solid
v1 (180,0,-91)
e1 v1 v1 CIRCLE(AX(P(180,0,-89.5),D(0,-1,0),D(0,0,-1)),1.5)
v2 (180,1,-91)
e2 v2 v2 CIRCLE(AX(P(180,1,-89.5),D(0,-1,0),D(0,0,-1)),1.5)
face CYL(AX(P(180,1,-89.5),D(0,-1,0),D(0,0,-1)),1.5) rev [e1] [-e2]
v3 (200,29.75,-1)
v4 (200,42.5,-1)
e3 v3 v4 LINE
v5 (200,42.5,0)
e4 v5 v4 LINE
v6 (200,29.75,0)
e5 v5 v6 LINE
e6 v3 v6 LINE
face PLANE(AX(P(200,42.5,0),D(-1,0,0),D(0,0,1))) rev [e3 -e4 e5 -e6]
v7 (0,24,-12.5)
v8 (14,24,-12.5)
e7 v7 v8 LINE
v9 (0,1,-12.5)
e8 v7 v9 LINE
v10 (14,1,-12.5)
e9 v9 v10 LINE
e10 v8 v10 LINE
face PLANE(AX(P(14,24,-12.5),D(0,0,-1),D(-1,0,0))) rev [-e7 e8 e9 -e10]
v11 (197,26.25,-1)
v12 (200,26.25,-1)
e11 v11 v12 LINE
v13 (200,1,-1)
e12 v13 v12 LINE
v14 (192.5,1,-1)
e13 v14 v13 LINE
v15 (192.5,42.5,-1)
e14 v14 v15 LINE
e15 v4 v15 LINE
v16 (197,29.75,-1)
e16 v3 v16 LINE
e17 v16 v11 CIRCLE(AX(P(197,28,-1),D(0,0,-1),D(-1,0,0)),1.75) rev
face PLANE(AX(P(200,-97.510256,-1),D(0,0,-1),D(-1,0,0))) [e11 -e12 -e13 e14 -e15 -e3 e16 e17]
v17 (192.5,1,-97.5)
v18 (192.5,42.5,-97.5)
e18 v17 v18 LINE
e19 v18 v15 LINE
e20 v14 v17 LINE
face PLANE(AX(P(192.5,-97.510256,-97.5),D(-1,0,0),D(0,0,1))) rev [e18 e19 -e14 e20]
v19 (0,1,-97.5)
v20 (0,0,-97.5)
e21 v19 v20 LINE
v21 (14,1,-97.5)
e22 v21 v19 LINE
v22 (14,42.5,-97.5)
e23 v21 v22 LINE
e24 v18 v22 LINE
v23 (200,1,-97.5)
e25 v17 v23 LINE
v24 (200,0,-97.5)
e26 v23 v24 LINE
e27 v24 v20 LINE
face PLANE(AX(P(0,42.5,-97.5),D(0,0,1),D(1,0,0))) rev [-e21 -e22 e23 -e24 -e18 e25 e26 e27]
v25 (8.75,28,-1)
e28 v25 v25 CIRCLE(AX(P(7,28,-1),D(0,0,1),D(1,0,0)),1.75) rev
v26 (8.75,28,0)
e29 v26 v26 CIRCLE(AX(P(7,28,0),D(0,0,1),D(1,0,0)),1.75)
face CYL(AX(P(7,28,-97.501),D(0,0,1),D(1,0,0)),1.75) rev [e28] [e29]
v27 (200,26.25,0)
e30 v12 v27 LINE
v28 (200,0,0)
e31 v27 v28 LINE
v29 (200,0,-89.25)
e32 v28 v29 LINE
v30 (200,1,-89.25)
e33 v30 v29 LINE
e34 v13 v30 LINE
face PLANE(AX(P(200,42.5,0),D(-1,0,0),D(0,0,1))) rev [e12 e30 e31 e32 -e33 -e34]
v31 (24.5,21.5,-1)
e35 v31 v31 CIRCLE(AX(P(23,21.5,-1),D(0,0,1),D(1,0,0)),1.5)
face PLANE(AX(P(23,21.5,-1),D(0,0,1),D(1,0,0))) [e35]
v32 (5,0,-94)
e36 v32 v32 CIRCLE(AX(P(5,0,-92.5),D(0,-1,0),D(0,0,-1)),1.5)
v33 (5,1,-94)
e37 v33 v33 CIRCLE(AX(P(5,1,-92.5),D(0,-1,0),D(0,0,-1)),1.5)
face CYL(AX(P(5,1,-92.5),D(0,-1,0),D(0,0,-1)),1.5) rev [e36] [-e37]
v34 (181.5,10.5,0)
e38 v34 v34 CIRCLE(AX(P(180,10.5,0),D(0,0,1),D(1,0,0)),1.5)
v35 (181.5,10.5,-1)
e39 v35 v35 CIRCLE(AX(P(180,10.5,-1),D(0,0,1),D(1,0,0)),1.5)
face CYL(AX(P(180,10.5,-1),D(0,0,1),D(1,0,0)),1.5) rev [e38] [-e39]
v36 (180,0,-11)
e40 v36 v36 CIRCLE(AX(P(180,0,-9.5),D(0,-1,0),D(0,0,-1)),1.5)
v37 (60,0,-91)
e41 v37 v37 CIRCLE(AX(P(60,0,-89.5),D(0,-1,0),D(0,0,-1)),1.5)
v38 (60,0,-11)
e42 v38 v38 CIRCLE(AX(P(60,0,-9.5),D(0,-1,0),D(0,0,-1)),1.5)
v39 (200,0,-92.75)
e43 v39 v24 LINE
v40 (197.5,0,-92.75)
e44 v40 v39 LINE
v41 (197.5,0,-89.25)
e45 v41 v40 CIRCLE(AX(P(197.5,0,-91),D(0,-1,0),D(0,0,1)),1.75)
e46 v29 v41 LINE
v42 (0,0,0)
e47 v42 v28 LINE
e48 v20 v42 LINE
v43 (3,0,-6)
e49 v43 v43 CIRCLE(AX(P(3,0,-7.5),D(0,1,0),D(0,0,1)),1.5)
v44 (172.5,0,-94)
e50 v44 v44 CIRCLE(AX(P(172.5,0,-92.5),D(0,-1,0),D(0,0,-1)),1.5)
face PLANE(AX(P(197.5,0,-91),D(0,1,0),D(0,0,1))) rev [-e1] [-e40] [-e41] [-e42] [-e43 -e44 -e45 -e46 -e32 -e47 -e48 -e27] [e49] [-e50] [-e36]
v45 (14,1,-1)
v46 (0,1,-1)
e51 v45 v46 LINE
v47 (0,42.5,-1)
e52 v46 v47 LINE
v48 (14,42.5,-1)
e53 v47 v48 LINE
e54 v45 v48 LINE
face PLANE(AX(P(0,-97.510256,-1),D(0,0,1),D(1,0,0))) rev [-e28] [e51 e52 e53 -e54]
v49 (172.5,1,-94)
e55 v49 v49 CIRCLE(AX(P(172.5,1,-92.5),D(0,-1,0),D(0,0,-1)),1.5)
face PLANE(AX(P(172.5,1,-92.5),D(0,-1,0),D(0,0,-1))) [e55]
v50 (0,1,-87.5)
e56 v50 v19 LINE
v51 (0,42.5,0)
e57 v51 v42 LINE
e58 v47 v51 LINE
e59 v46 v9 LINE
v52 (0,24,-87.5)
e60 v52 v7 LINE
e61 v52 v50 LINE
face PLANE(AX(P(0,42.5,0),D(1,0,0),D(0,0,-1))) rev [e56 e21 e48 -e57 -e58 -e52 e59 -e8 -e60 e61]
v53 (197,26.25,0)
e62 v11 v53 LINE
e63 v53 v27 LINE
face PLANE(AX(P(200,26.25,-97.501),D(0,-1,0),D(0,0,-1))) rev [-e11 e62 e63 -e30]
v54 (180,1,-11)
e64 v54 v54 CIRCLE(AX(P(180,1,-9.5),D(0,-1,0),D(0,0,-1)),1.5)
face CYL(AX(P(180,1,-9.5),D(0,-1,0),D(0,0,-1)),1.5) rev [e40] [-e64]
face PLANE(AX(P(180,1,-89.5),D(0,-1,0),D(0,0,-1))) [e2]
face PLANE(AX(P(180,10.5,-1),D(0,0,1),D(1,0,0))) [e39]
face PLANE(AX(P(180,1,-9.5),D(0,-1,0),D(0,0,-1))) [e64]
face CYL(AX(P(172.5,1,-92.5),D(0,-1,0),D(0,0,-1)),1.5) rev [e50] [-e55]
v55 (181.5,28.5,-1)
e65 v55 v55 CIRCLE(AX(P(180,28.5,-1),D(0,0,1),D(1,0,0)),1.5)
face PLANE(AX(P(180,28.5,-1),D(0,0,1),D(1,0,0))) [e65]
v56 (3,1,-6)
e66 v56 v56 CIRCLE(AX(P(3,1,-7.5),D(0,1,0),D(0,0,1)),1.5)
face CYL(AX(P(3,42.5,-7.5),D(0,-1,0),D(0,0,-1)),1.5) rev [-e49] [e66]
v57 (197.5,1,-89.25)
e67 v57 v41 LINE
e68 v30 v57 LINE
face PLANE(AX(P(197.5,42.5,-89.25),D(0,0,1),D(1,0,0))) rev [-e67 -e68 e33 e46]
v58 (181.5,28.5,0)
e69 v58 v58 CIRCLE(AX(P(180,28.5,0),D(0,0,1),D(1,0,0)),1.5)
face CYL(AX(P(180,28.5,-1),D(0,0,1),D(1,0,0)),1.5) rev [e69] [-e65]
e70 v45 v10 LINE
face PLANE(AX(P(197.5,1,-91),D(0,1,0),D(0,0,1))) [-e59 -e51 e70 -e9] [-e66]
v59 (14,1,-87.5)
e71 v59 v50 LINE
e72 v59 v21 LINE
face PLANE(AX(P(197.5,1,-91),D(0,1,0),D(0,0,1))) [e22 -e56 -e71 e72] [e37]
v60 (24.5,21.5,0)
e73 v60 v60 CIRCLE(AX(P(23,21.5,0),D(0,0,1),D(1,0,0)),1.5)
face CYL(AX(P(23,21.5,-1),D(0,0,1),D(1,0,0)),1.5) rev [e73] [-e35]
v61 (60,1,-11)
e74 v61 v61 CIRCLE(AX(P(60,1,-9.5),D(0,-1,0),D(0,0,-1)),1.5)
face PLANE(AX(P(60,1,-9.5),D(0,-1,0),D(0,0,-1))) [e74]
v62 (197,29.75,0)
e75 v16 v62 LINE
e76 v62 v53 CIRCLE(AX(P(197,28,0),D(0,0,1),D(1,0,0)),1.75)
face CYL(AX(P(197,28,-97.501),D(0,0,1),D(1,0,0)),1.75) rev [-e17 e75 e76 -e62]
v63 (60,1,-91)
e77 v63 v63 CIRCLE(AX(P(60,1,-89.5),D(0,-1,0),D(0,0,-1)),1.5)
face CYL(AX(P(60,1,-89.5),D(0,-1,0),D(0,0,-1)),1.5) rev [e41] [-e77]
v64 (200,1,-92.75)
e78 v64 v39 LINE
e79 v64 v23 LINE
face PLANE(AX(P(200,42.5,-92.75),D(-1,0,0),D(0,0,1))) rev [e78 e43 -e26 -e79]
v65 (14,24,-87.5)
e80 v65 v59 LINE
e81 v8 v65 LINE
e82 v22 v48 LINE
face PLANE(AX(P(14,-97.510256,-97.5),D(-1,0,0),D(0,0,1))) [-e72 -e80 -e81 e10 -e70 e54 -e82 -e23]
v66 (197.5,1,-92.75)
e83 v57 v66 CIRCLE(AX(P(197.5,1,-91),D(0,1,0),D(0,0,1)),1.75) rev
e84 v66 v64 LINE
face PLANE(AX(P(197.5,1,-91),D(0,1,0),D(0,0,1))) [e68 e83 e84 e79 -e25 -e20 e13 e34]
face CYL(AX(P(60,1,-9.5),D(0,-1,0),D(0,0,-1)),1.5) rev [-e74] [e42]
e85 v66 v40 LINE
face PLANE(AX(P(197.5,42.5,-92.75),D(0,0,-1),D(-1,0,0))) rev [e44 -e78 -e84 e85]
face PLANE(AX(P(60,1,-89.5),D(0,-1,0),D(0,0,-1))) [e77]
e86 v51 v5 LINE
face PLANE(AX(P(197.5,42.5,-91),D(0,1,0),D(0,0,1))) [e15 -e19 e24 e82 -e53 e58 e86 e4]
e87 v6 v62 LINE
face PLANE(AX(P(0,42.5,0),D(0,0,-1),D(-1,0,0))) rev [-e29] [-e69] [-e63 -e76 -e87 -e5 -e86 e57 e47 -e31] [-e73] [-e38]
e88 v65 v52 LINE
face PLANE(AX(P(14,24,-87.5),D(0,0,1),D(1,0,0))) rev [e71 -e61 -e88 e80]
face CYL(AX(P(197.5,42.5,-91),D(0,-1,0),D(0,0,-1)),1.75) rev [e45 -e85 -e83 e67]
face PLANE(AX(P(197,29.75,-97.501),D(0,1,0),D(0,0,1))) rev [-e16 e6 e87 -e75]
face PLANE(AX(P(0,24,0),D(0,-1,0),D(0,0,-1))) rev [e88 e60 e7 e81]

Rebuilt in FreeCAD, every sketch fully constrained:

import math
import FreeCAD as App
import Part
import Sketcher
from FreeCAD import Vector

doc = App.newDocument("Part")
params = doc.addObject("Spreadsheet::Sheet", "Params")
for row, (alias, value) in enumerate([
    ("sketch1_diameter", "3 mm"),
    ("sketch1_width", "200 mm"),
    ("sketch1_radius", "1.75 mm"),
    ("sketch1_width2", "2.5 mm"),
    ("sketch1_height", "97.5 mm"),
    ("pad1_length", "42.5 mm"),
    ("sketch2_width", "14 mm"),
    ("sketch2_width2", "7.5 mm"),
    ("sketch2_height", "96.5 mm"),
    ("pocket1_length", "41.5 mm"),
    ("sketch3_diameter", "3.5 mm"),
    ("sketch4_width", "3 mm"),
    ("sketch4_radius", "1.75 mm"),
    ("sketch5_width", "14 mm"),
    ("sketch5_height", "75 mm"),
    ("pad2_length", "23 mm"),
    ("sketch6_diameter", "3 mm"),
    ("pocket4_length", "1 mm"),
    ("sketch7_diameter", "3 mm"),
    ("pocket5_length", "1 mm"),
], start=1):
    params.set(f"A{row}", alias)
    params.set(f"B{row}", "=" + value)
    params.setAlias(f"B{row}", alias)

body = doc.addObject("PartDesign::Body", "Body")

# Sketch on XZ plane
sketch1 = doc.addObject("Sketcher::SketchObject", "Sketch")
body.addObject(sketch1)
sketch1.AttachmentSupport = (doc.XZ_Plane, [""])
sketch1.MapMode = "FlatFace"
sketch1.addGeometry(Part.LineSegment(Vector(197.5, -92.8, 0), Vector(200, -92.8, 0)), False)
sketch1.addGeometry(Part.LineSegment(Vector(200, -92.8, 0), Vector(200, -97.5, 0)), False)
sketch1.addGeometry(Part.LineSegment(Vector(200, -97.5, 0), Vector(0, -97.5, 0)), False)
sketch1.addGeometry(Part.LineSegment(Vector(0, -97.5, 0), Vector(0, 0, 0)), False)
sketch1.addGeometry(Part.LineSegment(Vector(0, 0, 0), Vector(200, 0, 0)), False)
sketch1.addGeometry(Part.LineSegment(Vector(200, 0, 0), Vector(200, -89.2, 0)), False)
sketch1.addGeometry(Part.LineSegment(Vector(200, -89.2, 0), Vector(197.5, -89.2, 0)), False)
sketch1.addGeometry(Part.ArcOfCircle(Part.Circle(Vector(197.5, -91, 0), Vector(0, 0, 1), 1.8), math.radians(90), math.radians(270)), False)
sketch1.addGeometry(Part.Circle(Vector(3, -7.5, 0), Vector(0, 0, 1), 1.5), False)
sketch1.addConstraint(Sketcher.Constraint("Coincident", 0, 2, 1, 1))
sketch1.addConstraint(Sketcher.Constraint("Coincident", 1, 2, 2, 1))
sketch1.addConstraint(Sketcher.Constraint("Coincident", 2, 2, 3, 1))
sketch1.addConstraint(Sketcher.Constraint("Coincident", 3, 2, 4, 1))
sketch1.addConstraint(Sketcher.Constraint("Coincident", 4, 2, 5, 1))
sketch1.addConstraint(Sketcher.Constraint("Coincident", 5, 2, 6, 1))
sketch1.addConstraint(Sketcher.Constraint("Tangent", 6, 2, 7, 1))
sketch1.addConstraint(Sketcher.Constraint("Tangent", 7, 2, 0, 1))
sketch1.addConstraint(Sketcher.Constraint("Horizontal", 0))
sketch1.addConstraint(Sketcher.Constraint("Vertical", 1))
sketch1.addConstraint(Sketcher.Constraint("Horizontal", 2))
sketch1.addConstraint(Sketcher.Constraint("Vertical", 3))
sketch1.addConstraint(Sketcher.Constraint("Horizontal", 4))
sketch1.addConstraint(Sketcher.Constraint("Vertical", 5))
sketch1.addConstraint(Sketcher.Constraint("Horizontal", 6))
sketch1.addConstraint(Sketcher.Constraint("Coincident", 3, 2, -1, 1))
sketch1.addConstraint(Sketcher.Constraint("Vertical", 1, 2, 4, 2))
sketch1.addConstraint(Sketcher.Constraint("Diameter", 8, 3.0))
sketch1.addConstraint(Sketcher.Constraint("DistanceX", 2, 2, 2, 1, 200.0))
sketch1.addConstraint(Sketcher.Constraint("Radius", 7, 1.75))
sketch1.addConstraint(Sketcher.Constraint("DistanceX", 0, 1, 0, 2, 2.5))
sketch1.addConstraint(Sketcher.Constraint("DistanceY", 3, 1, 3, 2, 97.5))
sketch1.addConstraint(Sketcher.Constraint("DistanceY", 7, 3, -1, 1, 91.0))
sketch1.addConstraint(Sketcher.Constraint("DistanceX", -1, 1, 8, 3, 3.0))
sketch1.addConstraint(Sketcher.Constraint("DistanceY", 1, 2, 8, 3, 90.0))
sketch1.setExpression("Constraints[17]", "Params.sketch1_diameter")
sketch1.setExpression("Constraints[18]", "Params.sketch1_width")
sketch1.setExpression("Constraints[19]", "Params.sketch1_radius")
sketch1.setExpression("Constraints[20]", "Params.sketch1_width2")
sketch1.setExpression("Constraints[21]", "Params.sketch1_height")
pad1 = doc.addObject("PartDesign::Pad", "Pad")
body.addObject(pad1)
pad1.Profile = sketch1
pad1.setExpression("Length", "Params.pad1_length")
pad1.Reversed = True

# Sketch on XZ plane
sketch2 = doc.addObject("Sketcher::SketchObject", "Sketch001")
body.addObject(sketch2)
sketch2.AttachmentSupport = (doc.XZ_Plane, [""])
sketch2.MapMode = "FlatFace"
sketch2.AttachmentOffset = App.Placement(Vector(0, 0, -42.5), App.Rotation())
sketch2.addGeometry(Part.LineSegment(Vector(192, -98, 0), Vector(192, -1, 0)), False)
sketch2.addGeometry(Part.LineSegment(Vector(192, -1, 0), Vector(200, -1, 0)), False)
sketch2.addGeometry(Part.LineSegment(Vector(200, -1, 0), Vector(200, -98, 0)), False)
sketch2.addGeometry(Part.LineSegment(Vector(200, -98, 0), Vector(192, -98, 0)), False)
sketch2.addGeometry(Part.LineSegment(Vector(0, -98, 0), Vector(0, -1, 0)), False)
sketch2.addGeometry(Part.LineSegment(Vector(0, -1, 0), Vector(14, -1, 0)), False)
sketch2.addGeometry(Part.LineSegment(Vector(14, -1, 0), Vector(14, -98, 0)), False)
sketch2.addGeometry(Part.LineSegment(Vector(14, -98, 0), Vector(0, -98, 0)), False)
sketch2.addConstraint(Sketcher.Constraint("Coincident", 0, 2, 1, 1))
sketch2.addConstraint(Sketcher.Constraint("Coincident", 1, 2, 2, 1))
sketch2.addConstraint(Sketcher.Constraint("Coincident", 2, 2, 3, 1))
sketch2.addConstraint(Sketcher.Constraint("Coincident", 3, 2, 0, 1))
sketch2.addConstraint(Sketcher.Constraint("Coincident", 4, 2, 5, 1))
sketch2.addConstraint(Sketcher.Constraint("Coincident", 5, 2, 6, 1))
sketch2.addConstraint(Sketcher.Constraint("Coincident", 6, 2, 7, 1))
sketch2.addConstraint(Sketcher.Constraint("Coincident", 7, 2, 4, 1))
sketch2.addConstraint(Sketcher.Constraint("Vertical", 0))
sketch2.addConstraint(Sketcher.Constraint("Horizontal", 1))
sketch2.addConstraint(Sketcher.Constraint("Vertical", 2))
sketch2.addConstraint(Sketcher.Constraint("Horizontal", 3))
sketch2.addConstraint(Sketcher.Constraint("Vertical", 4))
sketch2.addConstraint(Sketcher.Constraint("Horizontal", 5))
sketch2.addConstraint(Sketcher.Constraint("Vertical", 6))
sketch2.addConstraint(Sketcher.Constraint("Horizontal", 7))
sketch2.addConstraint(Sketcher.Constraint("PointOnObject", 4, 2, -2))
sketch2.addConstraint(Sketcher.Constraint("Horizontal", 1, 2, 4, 2))
sketch2.addConstraint(Sketcher.Constraint("Horizontal", 3, 2, 6, 2))
sketch2.addConstraint(Sketcher.Constraint("DistanceX", 5, 1, 5, 2, 14.0))
sketch2.addConstraint(Sketcher.Constraint("DistanceX", 1, 1, 1, 2, 7.5))
sketch2.addConstraint(Sketcher.Constraint("DistanceY", 0, 1, 0, 2, 96.5))
sketch2.addConstraint(Sketcher.Constraint("DistanceY", 0, 2, -1, 1, 1.0))
sketch2.addConstraint(Sketcher.Constraint("DistanceX", -1, 1, 1, 2, 200.0))
sketch2.setExpression("Constraints[19]", "Params.sketch2_width")
sketch2.setExpression("Constraints[20]", "Params.sketch2_width2")
sketch2.setExpression("Constraints[21]", "Params.sketch2_height")
pocket1 = doc.addObject("PartDesign::Pocket", "Pocket")
body.addObject(pocket1)
pocket1.Profile = sketch2
pocket1.setExpression("Length", "Params.pocket1_length")
pocket1.Reversed = True

# Sketch on XY plane
sketch3 = doc.addObject("Sketcher::SketchObject", "Sketch002")
body.addObject(sketch3)
sketch3.AttachmentSupport = (doc.XY_Plane, [""])
sketch3.MapMode = "FlatFace"
sketch3.addGeometry(Part.Circle(Vector(7, 28, 0), Vector(0, 0, 1), 1.8), False)
sketch3.addConstraint(Sketcher.Constraint("Diameter", 0, 3.5))
sketch3.addConstraint(Sketcher.Constraint("DistanceX", -1, 1, 0, 3, 7.0))
sketch3.addConstraint(Sketcher.Constraint("DistanceY", -1, 1, 0, 3, 28.0))
sketch3.setExpression("Constraints[0]", "Params.sketch3_diameter")
pocket2 = doc.addObject("PartDesign::Pocket", "Pocket001")
body.addObject(pocket2)
pocket2.Profile = sketch3
pocket2.Type = "UpToFirst"

# Sketch on XY plane
sketch4 = doc.addObject("Sketcher::SketchObject", "Sketch003")
body.addObject(sketch4)
sketch4.AttachmentSupport = (doc.XY_Plane, [""])
sketch4.MapMode = "FlatFace"
sketch4.addGeometry(Part.LineSegment(Vector(200, 29.8, 0), Vector(197, 29.8, 0)), False)
sketch4.addGeometry(Part.ArcOfCircle(Part.Circle(Vector(197, 28, 0), Vector(0, 0, 1), 1.8), math.radians(90), math.radians(270)), False)
sketch4.addGeometry(Part.LineSegment(Vector(197, 26.2, 0), Vector(200, 26.2, 0)), False)
sketch4.addGeometry(Part.LineSegment(Vector(200, 26.2, 0), Vector(200, 29.8, 0)), False)
sketch4.addConstraint(Sketcher.Constraint("Tangent", 0, 2, 1, 1))
sketch4.addConstraint(Sketcher.Constraint("Tangent", 1, 2, 2, 1))
sketch4.addConstraint(Sketcher.Constraint("Coincident", 2, 2, 3, 1))
sketch4.addConstraint(Sketcher.Constraint("Coincident", 3, 2, 0, 1))
sketch4.addConstraint(Sketcher.Constraint("Horizontal", 0))
sketch4.addConstraint(Sketcher.Constraint("Horizontal", 2))
sketch4.addConstraint(Sketcher.Constraint("Vertical", 3))
sketch4.addConstraint(Sketcher.Constraint("DistanceX", 0, 2, 0, 1, 3.0))
sketch4.addConstraint(Sketcher.Constraint("Radius", 1, 1.75))
sketch4.addConstraint(Sketcher.Constraint("DistanceX", -1, 1, 1, 3, 197.0))
sketch4.addConstraint(Sketcher.Constraint("DistanceY", -1, 1, 1, 3, 28.0))
sketch4.setExpression("Constraints[7]", "Params.sketch4_width")
sketch4.setExpression("Constraints[8]", "Params.sketch4_radius")
pocket3 = doc.addObject("PartDesign::Pocket", "Pocket002")
body.addObject(pocket3)
pocket3.Profile = sketch4
pocket3.Type = "UpToFirst"

# Sketch on XZ plane
sketch5 = doc.addObject("Sketcher::SketchObject", "Sketch004")
body.addObject(sketch5)
sketch5.AttachmentSupport = (doc.XZ_Plane, [""])
sketch5.MapMode = "FlatFace"
sketch5.AttachmentOffset = App.Placement(Vector(0, 0, -1), App.Rotation())
sketch5.addGeometry(Part.LineSegment(Vector(0, -88, 0), Vector(0, -12, 0)), False)
sketch5.addGeometry(Part.LineSegment(Vector(0, -12, 0), Vector(14, -12, 0)), False)
sketch5.addGeometry(Part.LineSegment(Vector(14, -12, 0), Vector(14, -88, 0)), False)
sketch5.addGeometry(Part.LineSegment(Vector(14, -88, 0), Vector(0, -88, 0)), False)
sketch5.addConstraint(Sketcher.Constraint("Coincident", 0, 2, 1, 1))
sketch5.addConstraint(Sketcher.Constraint("Coincident", 1, 2, 2, 1))
sketch5.addConstraint(Sketcher.Constraint("Coincident", 2, 2, 3, 1))
sketch5.addConstraint(Sketcher.Constraint("Coincident", 3, 2, 0, 1))
sketch5.addConstraint(Sketcher.Constraint("Vertical", 0))
sketch5.addConstraint(Sketcher.Constraint("Horizontal", 1))
sketch5.addConstraint(Sketcher.Constraint("Vertical", 2))
sketch5.addConstraint(Sketcher.Constraint("Horizontal", 3))
sketch5.addConstraint(Sketcher.Constraint("PointOnObject", 0, 2, -2))
sketch5.addConstraint(Sketcher.Constraint("DistanceX", 1, 1, 1, 2, 14.0))
sketch5.addConstraint(Sketcher.Constraint("DistanceY", 0, 1, 0, 2, 75.0))
sketch5.addConstraint(Sketcher.Constraint("DistanceY", 0, 2, -1, 1, 12.5))
sketch5.setExpression("Constraints[9]", "Params.sketch5_width")
sketch5.setExpression("Constraints[10]", "Params.sketch5_height")
pad2 = doc.addObject("PartDesign::Pad", "Pad001")
body.addObject(pad2)
pad2.Profile = sketch5
pad2.setExpression("Length", "Params.pad2_length")
pad2.Reversed = True

# Sketch on XY plane
sketch6 = doc.addObject("Sketcher::SketchObject", "Sketch005")
body.addObject(sketch6)
sketch6.AttachmentSupport = (doc.XY_Plane, [""])
sketch6.MapMode = "FlatFace"
sketch6.addGeometry(Part.Circle(Vector(23, 21.5, 0), Vector(0, 0, 1), 1.5), False)
sketch6.addGeometry(Part.Circle(Vector(180, 10.5, 0), Vector(0, 0, 1), 1.5), False)
sketch6.addGeometry(Part.Circle(Vector(180, 28.5, 0), Vector(0, 0, 1), 1.5), False)
sketch6.addConstraint(Sketcher.Constraint("Equal", 0, 1))
sketch6.addConstraint(Sketcher.Constraint("Equal", 1, 2))
sketch6.addConstraint(Sketcher.Constraint("Vertical", 1, 3, 2, 3))
sketch6.addConstraint(Sketcher.Constraint("Diameter", 0, 3.0))
sketch6.addConstraint(Sketcher.Constraint("DistanceX", -1, 1, 0, 3, 23.0))
sketch6.addConstraint(Sketcher.Constraint("DistanceX", -1, 1, 1, 3, 180.0))
sketch6.addConstraint(Sketcher.Constraint("DistanceY", 1, 3, 0, 3, 11.0))
sketch6.addConstraint(Sketcher.Constraint("DistanceY", 1, 3, 2, 3, 18.0))
sketch6.addConstraint(Sketcher.Constraint("DistanceY", -1, 1, 0, 3, 21.5))
sketch6.setExpression("Constraints[3]", "Params.sketch6_diameter")
pocket4 = doc.addObject("PartDesign::Pocket", "Pocket003")
body.addObject(pocket4)
pocket4.Profile = sketch6
pocket4.setExpression("Length", "Params.pocket4_length")

# Sketch on XZ plane
sketch7 = doc.addObject("Sketcher::SketchObject", "Sketch006")
body.addObject(sketch7)
sketch7.AttachmentSupport = (doc.XZ_Plane, [""])
sketch7.MapMode = "FlatFace"
sketch7.addGeometry(Part.Circle(Vector(5, -92.5, 0), Vector(0, 0, 1), 1.5), False)
sketch7.addGeometry(Part.Circle(Vector(60, -9.5, 0), Vector(0, 0, 1), 1.5), False)
sketch7.addGeometry(Part.Circle(Vector(60, -89.5, 0), Vector(0, 0, 1), 1.5), False)
sketch7.addGeometry(Part.Circle(Vector(180, -89.5, 0), Vector(0, 0, 1), 1.5), False)
sketch7.addGeometry(Part.Circle(Vector(180, -9.5, 0), Vector(0, 0, 1), 1.5), False)
sketch7.addGeometry(Part.Circle(Vector(172.5, -92.5, 0), Vector(0, 0, 1), 1.5), False)
sketch7.addConstraint(Sketcher.Constraint("Equal", 0, 1))
sketch7.addConstraint(Sketcher.Constraint("Equal", 1, 2))
sketch7.addConstraint(Sketcher.Constraint("Equal", 2, 3))
sketch7.addConstraint(Sketcher.Constraint("Equal", 3, 4))
sketch7.addConstraint(Sketcher.Constraint("Equal", 4, 5))
sketch7.addConstraint(Sketcher.Constraint("Horizontal", 2, 3, 3, 3))
sketch7.addConstraint(Sketcher.Constraint("Horizontal", 1, 3, 4, 3))
sketch7.addConstraint(Sketcher.Constraint("Horizontal", 0, 3, 5, 3))
sketch7.addConstraint(Sketcher.Constraint("Vertical", 1, 3, 2, 3))
sketch7.addConstraint(Sketcher.Constraint("Vertical", 3, 3, 4, 3))
sketch7.addConstraint(Sketcher.Constraint("Diameter", 0, 3.0))
sketch7.addConstraint(Sketcher.Constraint("DistanceX", -1, 1, 0, 3, 5.0))
sketch7.addConstraint(Sketcher.Constraint("DistanceX", -1, 1, 1, 3, 60.0))
sketch7.addConstraint(Sketcher.Constraint("DistanceX", -1, 1, 3, 3, 180.0))
sketch7.addConstraint(Sketcher.Constraint("DistanceY", 0, 3, 1, 3, 83.0))
sketch7.addConstraint(Sketcher.Constraint("DistanceY", 0, 3, 2, 3, 3.0))
sketch7.addConstraint(Sketcher.Constraint("DistanceY", 0, 3, -1, 1, 92.5))
sketch7.addConstraint(Sketcher.Constraint("DistanceX", -1, 1, 5, 3, 172.5))
sketch7.setExpression("Constraints[10]", "Params.sketch7_diameter")
pocket5 = doc.addObject("PartDesign::Pocket", "Pocket004")
body.addObject(pocket5)
pocket5.Profile = sketch7
pocket5.setExpression("Length", "Params.pocket5_length")

doc.recompute()
